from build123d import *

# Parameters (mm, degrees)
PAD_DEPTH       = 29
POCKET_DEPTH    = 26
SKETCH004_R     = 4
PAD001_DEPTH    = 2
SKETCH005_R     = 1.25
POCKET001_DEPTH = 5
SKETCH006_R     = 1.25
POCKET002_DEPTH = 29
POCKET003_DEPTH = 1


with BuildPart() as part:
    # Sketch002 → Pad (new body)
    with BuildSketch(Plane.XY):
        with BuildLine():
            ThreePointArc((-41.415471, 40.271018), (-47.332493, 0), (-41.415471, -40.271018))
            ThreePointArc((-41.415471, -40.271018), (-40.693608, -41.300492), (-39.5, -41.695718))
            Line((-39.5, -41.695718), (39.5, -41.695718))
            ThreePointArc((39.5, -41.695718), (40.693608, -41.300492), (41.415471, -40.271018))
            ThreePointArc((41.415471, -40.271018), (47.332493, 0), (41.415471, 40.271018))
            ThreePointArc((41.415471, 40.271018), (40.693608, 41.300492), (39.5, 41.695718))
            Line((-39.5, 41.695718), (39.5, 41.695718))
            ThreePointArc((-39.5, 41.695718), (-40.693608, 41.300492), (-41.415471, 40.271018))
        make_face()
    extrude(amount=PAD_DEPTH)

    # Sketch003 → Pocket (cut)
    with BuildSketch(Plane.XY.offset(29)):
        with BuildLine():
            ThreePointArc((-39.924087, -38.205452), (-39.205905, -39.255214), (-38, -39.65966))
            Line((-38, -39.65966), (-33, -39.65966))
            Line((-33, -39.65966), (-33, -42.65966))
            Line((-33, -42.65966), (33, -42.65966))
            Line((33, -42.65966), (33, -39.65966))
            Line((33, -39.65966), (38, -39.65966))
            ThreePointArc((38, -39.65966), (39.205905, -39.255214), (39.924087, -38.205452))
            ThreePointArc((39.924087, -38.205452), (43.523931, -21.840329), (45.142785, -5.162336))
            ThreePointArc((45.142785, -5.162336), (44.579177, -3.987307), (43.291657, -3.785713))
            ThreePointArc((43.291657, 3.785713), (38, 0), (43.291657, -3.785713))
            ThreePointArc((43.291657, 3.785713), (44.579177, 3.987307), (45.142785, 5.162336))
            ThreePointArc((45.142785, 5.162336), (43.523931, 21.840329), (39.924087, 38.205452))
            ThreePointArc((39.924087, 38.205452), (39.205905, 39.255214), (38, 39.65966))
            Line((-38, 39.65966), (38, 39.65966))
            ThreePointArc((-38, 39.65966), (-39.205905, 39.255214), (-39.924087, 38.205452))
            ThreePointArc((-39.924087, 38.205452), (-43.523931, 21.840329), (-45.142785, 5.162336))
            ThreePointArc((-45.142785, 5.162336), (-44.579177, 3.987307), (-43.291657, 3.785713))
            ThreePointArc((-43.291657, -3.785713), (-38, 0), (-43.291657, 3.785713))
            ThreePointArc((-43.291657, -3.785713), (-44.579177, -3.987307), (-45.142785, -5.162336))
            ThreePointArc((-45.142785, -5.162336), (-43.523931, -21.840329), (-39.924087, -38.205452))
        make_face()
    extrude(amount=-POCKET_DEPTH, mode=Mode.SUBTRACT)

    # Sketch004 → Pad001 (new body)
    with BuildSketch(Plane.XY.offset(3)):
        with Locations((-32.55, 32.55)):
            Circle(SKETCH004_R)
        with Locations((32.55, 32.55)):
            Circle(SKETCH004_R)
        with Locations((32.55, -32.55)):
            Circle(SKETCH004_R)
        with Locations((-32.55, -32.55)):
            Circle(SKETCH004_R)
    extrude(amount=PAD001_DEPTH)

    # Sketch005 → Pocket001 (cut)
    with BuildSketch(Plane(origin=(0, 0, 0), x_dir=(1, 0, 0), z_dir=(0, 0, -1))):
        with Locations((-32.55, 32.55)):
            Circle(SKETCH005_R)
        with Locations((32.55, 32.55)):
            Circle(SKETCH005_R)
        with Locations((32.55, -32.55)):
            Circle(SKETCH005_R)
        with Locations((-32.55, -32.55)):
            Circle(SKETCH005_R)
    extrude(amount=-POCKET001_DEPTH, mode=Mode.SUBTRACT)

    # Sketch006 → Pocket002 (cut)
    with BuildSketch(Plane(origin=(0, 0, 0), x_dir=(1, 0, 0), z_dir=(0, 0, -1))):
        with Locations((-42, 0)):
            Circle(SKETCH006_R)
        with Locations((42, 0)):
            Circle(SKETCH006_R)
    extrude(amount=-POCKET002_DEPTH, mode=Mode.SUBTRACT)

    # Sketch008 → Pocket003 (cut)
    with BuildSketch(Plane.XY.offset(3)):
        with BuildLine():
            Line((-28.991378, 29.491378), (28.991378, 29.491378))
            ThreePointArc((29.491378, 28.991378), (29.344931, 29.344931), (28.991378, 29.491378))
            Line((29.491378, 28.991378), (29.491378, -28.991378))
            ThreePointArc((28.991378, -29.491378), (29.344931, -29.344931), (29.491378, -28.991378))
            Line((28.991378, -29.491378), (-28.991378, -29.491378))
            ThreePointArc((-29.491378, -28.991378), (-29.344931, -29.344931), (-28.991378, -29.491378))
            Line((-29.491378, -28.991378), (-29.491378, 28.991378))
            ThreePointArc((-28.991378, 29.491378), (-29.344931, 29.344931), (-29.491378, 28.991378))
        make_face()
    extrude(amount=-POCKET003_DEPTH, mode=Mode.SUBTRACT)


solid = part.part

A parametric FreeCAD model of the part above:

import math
import FreeCAD as App
import Part
import Sketcher

V = App.Vector
Q = App.Units.Quantity

doc = App.newDocument("Part")
body = doc.addObject("PartDesign::Body", "Body")

sketch1 = body.newObject("Sketcher::SketchObject", "Sketch")
sketch1.AttachmentSupport = (doc.getObject("XY_Plane"), [""])
sketch1.MapMode = "FlatFace"
sketch1.addGeometry(Part.ArcOfCircle(Part.Circle(V(92.667497, 0, 0), V(0, 0, 1), 139.99999), math.radians(163.282674), math.radians(196.717326)), False)
sketch1.addGeometry(Part.ArcOfCircle(Part.Circle(V(-39.5, -39.695718, 0), V(0, 0, 1), 2), math.radians(-163.282685), math.radians(-90.000003)), False)
sketch1.addGeometry(Part.LineSegment(V(-39.5, -41.695718, 0), V(39.5, -41.695718, 0)), False)
sketch1.addGeometry(Part.ArcOfCircle(Part.Circle(V(39.5, -39.695718, 0), V(0, 0, 1), 2), math.radians(-89.999997), math.radians(-16.717315)), False)
sketch1.addGeometry(Part.ArcOfCircle(Part.Circle(V(-92.667497, 0, 0), V(0, 0, 1), 139.99999), math.radians(-16.717326), math.radians(16.717326)), False)
sketch1.addGeometry(Part.ArcOfCircle(Part.Circle(V(39.5, 39.695718, 0), V(0, 0, 1), 2), math.radians(16.717315), math.radians(89.999997)), False)
sketch1.addGeometry(Part.LineSegment(V(39.5, 41.695718, 0), V(-39.5, 41.695718, 0)), False)
sketch1.addGeometry(Part.ArcOfCircle(Part.Circle(V(-39.5, 39.695718, 0), V(0, 0, 1), 2), math.radians(90.000003), math.radians(163.282685)), False)
sketch1.addConstraint(Sketcher.Constraint("Coincident", 0, 2, 1, 1))
sketch1.addConstraint(Sketcher.Constraint("Coincident", 1, 2, 2, 1))
sketch1.addConstraint(Sketcher.Constraint("Coincident", 2, 2, 3, 1))
sketch1.addConstraint(Sketcher.Constraint("Coincident", 3, 2, 4, 1))
sketch1.addConstraint(Sketcher.Constraint("Coincident", 4, 2, 5, 1))
sketch1.addConstraint(Sketcher.Constraint("Coincident", 5, 2, 6, 1))
sketch1.addConstraint(Sketcher.Constraint("Coincident", 6, 2, 7, 1))
sketch1.addConstraint(Sketcher.Constraint("Coincident", 7, 2, 0, 1))
sketch1.addConstraint(Sketcher.Constraint("Horizontal", 2))
sketch1.addConstraint(Sketcher.Constraint("Horizontal", 6))
sketch1.addConstraint(Sketcher.Constraint("PointOnObject", 0, 3, -1))
sketch1.addConstraint(Sketcher.Constraint("PointOnObject", 4, 3, -1))
sketch1.addConstraint(Sketcher.Constraint("Radius", 1, Q("2 mm")))
sketch1.addConstraint(Sketcher.Constraint("Radius", 3, Q("2 mm")))
sketch1.addConstraint(Sketcher.Constraint("Radius", 5, Q("2 mm")))
sketch1.addConstraint(Sketcher.Constraint("Radius", 7, Q("2 mm")))
sketch1.addConstraint(Sketcher.Constraint("DistanceX", 2, 1, 2, 2, Q("79 mm")))
sketch1.addConstraint(Sketcher.Constraint("DistanceX", 6, 2, 6, 1, Q("79 mm")))
sketch1.addConstraint(Sketcher.Constraint("DistanceX", 1, 3, 3, 3, Q("79 mm")))
sketch1.addConstraint(Sketcher.Constraint("DistanceX", 1, 3, 5, 3, Q("79 mm")))
sketch1.addConstraint(Sketcher.Constraint("DistanceX", 1, 2, 3, 3, Q("79 mm")))
sketch1.addConstraint(Sketcher.Constraint("DistanceX", 7, 3, 5, 2, Q("79 mm")))
sketch1.addConstraint(Sketcher.Constraint("DistanceX", 1, 3, -1, 1, Q("39.5 mm")))
sketch1.addConstraint(Sketcher.Constraint("Radius", 0, Q("139.99999 mm")))
sketch1.addConstraint(Sketcher.Constraint("Radius", 4, Q("139.99999 mm")))
sketch1.addConstraint(Sketcher.Constraint("DistanceY", 0, 2, 1, 3, Q("0.5753 mm")))
sketch1.addConstraint(Sketcher.Constraint("DistanceY", 3, 2, 3, 3, Q("0.5753 mm")))
sketch1.addConstraint(Sketcher.Constraint("DistanceY", 5, 3, 4, 2, Q("0.5753 mm")))
sketch1.addConstraint(Sketcher.Constraint("DistanceY", 7, 3, 7, 2, Q("0.5753 mm")))
sketch1.addConstraint(Sketcher.Constraint("DistanceY", 1, 3, -1, 1, Q("39.695718 mm")))
pad1 = body.newObject("PartDesign::Pad", "Pad")
pad1.Profile = sketch1
pad1.Length = 29

sketch2 = body.newObject("Sketcher::SketchObject", "Sketch001")
sketch2.AttachmentSupport = (doc.getObject("XY_Plane"), [""])
sketch2.MapMode = "FlatFace"
sketch2.AttachmentOffset = App.Placement(V(0, 0, 29), App.Rotation())
sketch2.addGeometry(Part.ArcOfCircle(Part.Circle(V(-38, -37.65966, 0), V(0, 0, 1), 2), math.radians(-164.163323), math.radians(-90.00001)), False)
sketch2.addGeometry(Part.LineSegment(V(-38, -39.65966, 0), V(-33, -39.65966, 0)), False)
sketch2.addGeometry(Part.LineSegment(V(-33, -39.65966, 0), V(-33, -42.65966, 0)), False)
sketch2.addGeometry(Part.LineSegment(V(-33, -42.65966, 0), V(33, -42.65966, 0)), False)
sketch2.addGeometry(Part.LineSegment(V(33, -42.65966, 0), V(33, -39.65966, 0)), False)
sketch2.addGeometry(Part.LineSegment(V(33, -39.65966, 0), V(38, -39.65966, 0)), False)
sketch2.addGeometry(Part.ArcOfCircle(Part.Circle(V(38, -37.65966, 0), V(0, 0, 1), 2), math.radians(-89.99999), math.radians(-15.836677)), False)
sketch2.addGeometry(Part.ArcOfCircle(Part.Circle(V(-94.761952, -0.000008, 0), V(0, 0, 1), 139.999947), math.radians(-15.836677), math.radians(-2.113191)), False)
sketch2.addGeometry(Part.ArcOfCircle(Part.Circle(V(43.743737, -5.110713, 0), V(0, 0, 1), 1.4), math.radians(-2.113191), math.radians(108.839255)), False)
sketch2.addGeometry(Part.ArcOfCircle(Part.Circle(V(42, 0, 0), V(0, 0, 1), 4), math.radians(71.160743), math.radians(288.839257)), False)
sketch2.addGeometry(Part.ArcOfCircle(Part.Circle(V(43.743737, 5.110713, 0), V(0, 0, 1), 1.4), math.radians(-108.839255), math.radians(2.113191)), False)
sketch2.addGeometry(Part.ArcOfCircle(Part.Circle(V(-94.761952, 0.000008, 0), V(0, 0, 1), 139.999947), math.radians(2.113191), math.radians(15.836677)), False)
sketch2.addGeometry(Part.ArcOfCircle(Part.Circle(V(38, 37.65966, 0), V(0, 0, 1), 2), math.radians(15.836677), math.radians(89.99999)), False)
sketch2.addGeometry(Part.LineSegment(V(38, 39.65966, 0), V(-38, 39.65966, 0)), False)
sketch2.addGeometry(Part.ArcOfCircle(Part.Circle(V(-38, 37.65966, 0), V(0, 0, 1), 2), math.radians(90.00001), math.radians(164.163323)), False)
sketch2.addGeometry(Part.ArcOfCircle(Part.Circle(V(94.761952, 0.000008, 0), V(0, 0, 1), 139.999947), math.radians(164.163323), math.radians(177.886809)), False)
sketch2.addGeometry(Part.ArcOfCircle(Part.Circle(V(-43.743737, 5.110713, 0), V(0, 0, 1), 1.4), math.radians(177.886809), math.radians(288.839255)), False)
sketch2.addGeometry(Part.ArcOfCircle(Part.Circle(V(-42, 0, 0), V(0, 0, 1), 4), math.radians(-108.839257), math.radians(108.839257)), False)
sketch2.addGeometry(Part.ArcOfCircle(Part.Circle(V(-43.743737, -5.110713, 0), V(0, 0, 1), 1.4), math.radians(71.160745), math.radians(182.113191)), False)
sketch2.addGeometry(Part.ArcOfCircle(Part.Circle(V(94.761952, -0.000008, 0), V(0, 0, 1), 139.999947), math.radians(-177.886809), math.radians(-164.163323)), False)
sketch2.addConstraint(Sketcher.Constraint("Coincident", 0, 2, 1, 1))
sketch2.addConstraint(Sketcher.Constraint("Coincident", 1, 2, 2, 1))
sketch2.addConstraint(Sketcher.Constraint("Coincident", 2, 2, 3, 1))
sketch2.addConstraint(Sketcher.Constraint("Coincident", 3, 2, 4, 1))
sketch2.addConstraint(Sketcher.Constraint("Coincident", 4, 2, 5, 1))
sketch2.addConstraint(Sketcher.Constraint("Coincident", 5, 2, 6, 1))
sketch2.addConstraint(Sketcher.Constraint("Coincident", 6, 2, 7, 1))
sketch2.addConstraint(Sketcher.Constraint("Coincident", 7, 2, 8, 1))
sketch2.addConstraint(Sketcher.Constraint("Coincident", 8, 2, 9, 2))
sketch2.addConstraint(Sketcher.Constraint("Coincident", 9, 1, 10, 1))
sketch2.addConstraint(Sketcher.Constraint("Coincident", 10, 2, 11, 1))
sketch2.addConstraint(Sketcher.Constraint("Coincident", 11, 2, 12, 1))
sketch2.addConstraint(Sketcher.Constraint("Coincident", 12, 2, 13, 1))
sketch2.addConstraint(Sketcher.Constraint("Coincident", 13, 2, 14, 1))
sketch2.addConstraint(Sketcher.Constraint("Coincident", 14, 2, 15, 1))
sketch2.addConstraint(Sketcher.Constraint("Coincident", 15, 2, 16, 1))
sketch2.addConstraint(Sketcher.Constraint("Coincident", 16, 2, 17, 2))
sketch2.addConstraint(Sketcher.Constraint("Coincident", 17, 1, 18, 1))
sketch2.addConstraint(Sketcher.Constraint("Coincident", 18, 2, 19, 1))
sketch2.addConstraint(Sketcher.Constraint("Coincident", 19, 2, 0, 1))
sketch2.addConstraint(Sketcher.Constraint("Horizontal", 1))
sketch2.addConstraint(Sketcher.Constraint("Vertical", 2))
sketch2.addConstraint(Sketcher.Constraint("Horizontal", 3))
sketch2.addConstraint(Sketcher.Constraint("Vertical", 4))
sketch2.addConstraint(Sketcher.Constraint("Horizontal", 5))
sketch2.addConstraint(Sketcher.Constraint("Horizontal", 13))
sketch2.addConstraint(Sketcher.Constraint("PointOnObject", 9, 3, -1))
sketch2.addConstraint(Sketcher.Constraint("PointOnObject", 17, 3, -1))
sketch2.addConstraint(Sketcher.Constraint("Radius", 0, Q("2 mm")))
sketch2.addConstraint(Sketcher.Constraint("Radius", 6, Q("2 mm")))
sketch2.addConstraint(Sketcher.Constraint("Radius", 9, Q("4 mm")))
sketch2.addConstraint(Sketcher.Constraint("Radius", 12, Q("2 mm")))
sketch2.addConstraint(Sketcher.Constraint("Radius", 14, Q("2 mm")))
sketch2.addConstraint(Sketcher.Constraint("Radius", 17, Q("4 mm")))
sketch2.addConstraint(Sketcher.Constraint("Radius", 8, Q("1.4 mm")))
sketch2.addConstraint(Sketcher.Constraint("Radius", 10, Q("1.4 mm")))
sketch2.addConstraint(Sketcher.Constraint("Radius", 16, Q("1.4 mm")))
sketch2.addConstraint(Sketcher.Constraint("Radius", 18, Q("1.4 mm")))
sketch2.addConstraint(Sketcher.Constraint("DistanceX", 1, 1, 1, 2, Q("5 mm")))
sketch2.addConstraint(Sketcher.Constraint("DistanceX", 3, 1, 3, 2, Q("66 mm")))
sketch2.addConstraint(Sketcher.Constraint("DistanceX", 5, 1, 5, 2, Q("5 mm")))
sketch2.addConstraint(Sketcher.Constraint("DistanceX", 13, 2, 13, 1, Q("76 mm")))
sketch2.addConstraint(Sketcher.Constraint("DistanceY", 2, 2, 2, 1, Q("3 mm")))
sketch2.addConstraint(Sketcher.Constraint("DistanceY", 4, 1, 4, 2, Q("3 mm")))
sketch2.addConstraint(Sketcher.Constraint("DistanceX", 0, 3, -1, 1, Q("38 mm")))
sketch2.addConstraint(Sketcher.Constraint("DistanceX", -1, 1, 6, 3, Q("38 mm")))
sketch2.addConstraint(Sketcher.Constraint("DistanceX", -1, 1, 9, 3, Q("42 mm")))
sketch2.addConstraint(Sketcher.Constraint("DistanceX", -1, 1, 12, 3, Q("38 mm")))
sketch2.addConstraint(Sketcher.Constraint("DistanceX", 14, 3, -1, 1, Q("38 mm")))
sketch2.addConstraint(Sketcher.Constraint("DistanceX", 17, 3, -1, 1, Q("42 mm")))
sketch2.addConstraint(Sketcher.Constraint("DistanceX", 0, 2, -1, 1, Q("38 mm")))
sketch2.addConstraint(Sketcher.Constraint("DistanceX", -1, 1, 12, 2, Q("38 mm")))
sketch2.addConstraint(Sketcher.Constraint("Radius", 7, Q("139.999947 mm")))
sketch2.addConstraint(Sketcher.Constraint("Radius", 11, Q("139.999947 mm")))
sketch2.addConstraint(Sketcher.Constraint("Radius", 15, Q("139.999947 mm")))
sketch2.addConstraint(Sketcher.Constraint("Radius", 19, Q("139.999947 mm")))
sketch2.addConstraint(Sketcher.Constraint("DistanceY", 8, 3, 8, 2, Q("1.325 mm")))
sketch2.addConstraint(Sketcher.Constraint("DistanceY", 9, 1, 10, 3, Q("1.325 mm")))
sketch2.addConstraint(Sketcher.Constraint("DistanceY", 16, 2, 16, 3, Q("1.325 mm")))
sketch2.addConstraint(Sketcher.Constraint("DistanceY", 18, 3, 17, 1, Q("1.325 mm")))
sketch2.addConstraint(Sketcher.Constraint("DistanceX", 6, 2, 7, 2, Q("5.218698 mm")))
sketch2.addConstraint(Sketcher.Constraint("DistanceX", 11, 2, 10, 2, Q("5.218698 mm")))
sketch2.addConstraint(Sketcher.Constraint("DistanceX", 15, 2, 14, 2, Q("5.218698 mm")))
sketch2.addConstraint(Sketcher.Constraint("DistanceY", 0, 3, -1, 1, Q("37.65966 mm")))
sketch2.addConstraint(Sketcher.Constraint("DistanceY", -1, 1, 12, 3, Q("37.65966 mm")))
sketch2.addConstraint(Sketcher.Constraint("DistanceY", 0, 3, 7, 3, Q("37.659652 mm")))
sketch2.addConstraint(Sketcher.Constraint("DistanceX", 7, 3, 10, 3, Q("138.505689 mm")))
sketch2.addConstraint(Sketcher.Constraint("DistanceY", 8, 3, 15, 3, Q("5.11072 mm")))
sketch2.addConstraint(Sketcher.Constraint("DistanceY", 19, 3, 10, 3, Q("5.11072 mm")))
sketch2.addConstraint(Sketcher.Constraint("DistanceX", 6, 2, 8, 3, Q("3.81965 mm")))
sketch2.addConstraint(Sketcher.Constraint("DistanceX", 10, 3, 10, 2, Q("1.399048 mm")))
sketch2.addConstraint(Sketcher.Constraint("DistanceX", 16, 3, 14, 2, Q("3.81965 mm")))
sketch2.addConstraint(Sketcher.Constraint("DistanceX", 18, 2, 18, 3, Q("1.399048 mm")))
sketch2.addConstraint(Sketcher.Constraint("DistanceX", 18, 3, 19, 2, Q("3.81965 mm")))
pocket1 = body.newObject("PartDesign::Pocket", "Pocket")
pocket1.Profile = sketch2
pocket1.Length = 26

sketch3 = body.newObject("Sketcher::SketchObject", "Sketch002")
sketch3.AttachmentSupport = (doc.getObject("XY_Plane"), [""])
sketch3.MapMode = "FlatFace"
sketch3.AttachmentOffset = App.Placement(V(0, 0, 3), App.Rotation())
sketch3.addGeometry(Part.Circle(V(-32.5, 32.5, 0), V(0, 0, 1), 4), False)
sketch3.addGeometry(Part.Circle(V(32.5, 32.5, 0), V(0, 0, 1), 4), False)
sketch3.addGeometry(Part.Circle(V(32.5, -32.5, 0), V(0, 0, 1), 4), False)
sketch3.addGeometry(Part.Circle(V(-32.5, -32.5, 0), V(0, 0, 1), 4), False)
sketch3.addConstraint(Sketcher.Constraint("Equal", 0, 1))
sketch3.addConstraint(Sketcher.Constraint("Equal", 1, 2))
sketch3.addConstraint(Sketcher.Constraint("Equal", 2, 3))
sketch3.addConstraint(Sketcher.Constraint("Symmetric", 0, 3, 2, 3, -1, 1))
sketch3.addConstraint(Sketcher.Constraint("Symmetric", 1, 3, 3, 3, -1, 1))
sketch3.addConstraint(Sketcher.Constraint("Symmetric", 0, 3, 1, 3, -2))
sketch3.addConstraint(Sketcher.Constraint("Diameter", 0, Q("8 mm")))
sketch3.addConstraint(Sketcher.Constraint("DistanceX", 0, 3, 1, 3, Q("65.1 mm")))
sketch3.addConstraint(Sketcher.Constraint("DistanceY", 2, 3, 1, 3, Q("65.1 mm")))
pad2 = body.newObject("PartDesign::Pad", "Pad001")
pad2.Profile = sketch3
pad2.Length = 2

sketch4 = body.newObject("Sketcher::SketchObject", "Sketch003")
sketch4.AttachmentSupport = (doc.getObject("XY_Plane"), [""])
sketch4.MapMode = "FlatFace"
sketch4.addGeometry(Part.Circle(V(-32.5, -32.5, 0), V(0, 0, 1), 1.2), False)
sketch4.addGeometry(Part.Circle(V(32.5, -32.5, 0), V(0, 0, 1), 1.2), False)
sketch4.addGeometry(Part.Circle(V(32.5, 32.5, 0), V(0, 0, 1), 1.2), False)
sketch4.addGeometry(Part.Circle(V(-32.5, 32.5, 0), V(0, 0, 1), 1.2), False)
sketch4.addConstraint(Sketcher.Constraint("Equal", 0, 1))
sketch4.addConstraint(Sketcher.Constraint("Equal", 1, 2))
sketch4.addConstraint(Sketcher.Constraint("Equal", 2, 3))
sketch4.addConstraint(Sketcher.Constraint("Symmetric", 0, 3, 2, 3, -1, 1))
sketch4.addConstraint(Sketcher.Constraint("Symmetric", 1, 3, 3, 3, -1, 1))
sketch4.addConstraint(Sketcher.Constraint("Symmetric", 0, 3, 1, 3, -2))
sketch4.addConstraint(Sketcher.Constraint("Diameter", 0, Q("2.5 mm")))
sketch4.addConstraint(Sketcher.Constraint("DistanceX", 0, 3, 1, 3, Q("65.1 mm")))
sketch4.addConstraint(Sketcher.Constraint("DistanceY", 1, 3, 2, 3, Q("65.1 mm")))
pocket2 = body.newObject("PartDesign::Pocket", "Pocket001")
pocket2.Profile = sketch4
pocket2.Length = 5
pocket2.Reversed = True

sketch5 = body.newObject("Sketcher::SketchObject", "Sketch004")
sketch5.AttachmentSupport = (doc.getObject("XY_Plane"), [""])
sketch5.MapMode = "FlatFace"
sketch5.addGeometry(Part.Circle(V(-42, 0, 0), V(0, 0, 1), 1.2), False)
sketch5.addGeometry(Part.Circle(V(42, 0, 0), V(0, 0, 1), 1.2), False)
sketch5.addConstraint(Sketcher.Constraint("Equal", 0, 1))
sketch5.addConstraint(Sketcher.Constraint("Symmetric", 0, 3, 1, 3, -1, 1))
sketch5.addConstraint(Sketcher.Constraint("PointOnObject", 0, 3, -1))
sketch5.addConstraint(Sketcher.Constraint("Diameter", 0, Q("2.5 mm")))
sketch5.addConstraint(Sketcher.Constraint("DistanceX", 0, 3, -1, 1, Q("42 mm")))
pocket3 = body.newObject("PartDesign::Pocket", "Pocket002")
pocket3.Profile = sketch5
pocket3.Length = 29
pocket3.Reversed = True

sketch6 = body.newObject("Sketcher::SketchObject", "Sketch005")
sketch6.AttachmentSupport = (doc.getObject("XY_Plane"), [""])
sketch6.MapMode = "FlatFace"
sketch6.AttachmentOffset = App.Placement(V(0, 0, 3), App.Rotation())
sketch6.addGeometry(Part.LineSegment(V(29, 29.5, 0), V(-29, 29.5, 0)), False)
sketch6.addGeometry(Part.ArcOfCircle(Part.Circle(V(-29, 29, 0), V(0, 0, 1), 0.5), math.radians(90), math.radians(180)), False)
sketch6.addGeometry(Part.LineSegment(V(-29.5, 29, 0), V(-29.5, -29, 0)), False)
sketch6.addGeometry(Part.ArcOfCircle(Part.Circle(V(-29, -29, 0), V(0, 0, 1), 0.5), math.radians(-180), math.radians(-90)), False)
sketch6.addGeometry(Part.LineSegment(V(-29, -29.5, 0), V(29, -29.5, 0)), False)
sketch6.addGeometry(Part.ArcOfCircle(Part.Circle(V(29, -29, 0), V(0, 0, 1), 0.5), math.radians(-90), math.radians(0)), False)
sketch6.addGeometry(Part.LineSegment(V(29.5, -29, 0), V(29.5, 29, 0)), False)
sketch6.addGeometry(Part.ArcOfCircle(Part.Circle(V(29, 29, 0), V(0, 0, 1), 0.5), math.radians(0), math.radians(90)), False)
sketch6.addConstraint(Sketcher.Constraint("Coincident", 0, 2, 1, 1))
sketch6.addConstraint(Sketcher.Constraint("Coincident", 1, 2, 2, 1))
sketch6.addConstraint(Sketcher.Constraint("Coincident", 2, 2, 3, 1))
sketch6.addConstraint(Sketcher.Constraint("Coincident", 3, 2, 4, 1))
sketch6.addConstraint(Sketcher.Constraint("Coincident", 4, 2, 5, 1))
sketch6.addConstraint(Sketcher.Constraint("Coincident", 5, 2, 6, 1))
sketch6.addConstraint(Sketcher.Constraint("Coincident", 6, 2, 7, 1))
sketch6.addConstraint(Sketcher.Constraint("Coincident", 7, 2, 0, 1))
sketch6.addConstraint(Sketcher.Constraint("Horizontal", 0))
sketch6.addConstraint(Sketcher.Constraint("Vertical", 2))
sketch6.addConstraint(Sketcher.Constraint("Horizontal", 4))
sketch6.addConstraint(Sketcher.Constraint("Vertical", 6))
sketch6.addConstraint(Sketcher.Constraint("Equal", 1, 3))
sketch6.addConstraint(Sketcher.Constraint("Equal", 3, 5))
sketch6.addConstraint(Sketcher.Constraint("Equal", 5, 7))
sketch6.addConstraint(Sketcher.Constraint("Symmetric", 1, 3, 5, 3, -1, 1))
sketch6.addConstraint(Sketcher.Constraint("Horizontal", 7, 3, 1, 2))
sketch6.addConstraint(Sketcher.Constraint("Horizontal", 5, 3, 2, 2))
sketch6.addConstraint(Sketcher.Constraint("Horizontal", 2, 2, 5, 2))
sketch6.addConstraint(Sketcher.Constraint("Horizontal", 1, 2, 6, 2))
sketch6.addConstraint(Sketcher.Constraint("Vertical", 3, 3, 0, 2))
sketch6.addConstraint(Sketcher.Constraint("Vertical", 0, 2, 3, 2))
sketch6.addConstraint(Sketcher.Constraint("Vertical", 7, 3, 4, 2))
sketch6.addConstraint(Sketcher.Constraint("Vertical", 4, 2, 7, 2))
sketch6.addConstraint(Sketcher.Constraint("Equal", 4, 2))
sketch6.addConstraint(Sketcher.Constraint("Radius", 1, Q("0.500001 mm")))
sketch6.addConstraint(Sketcher.Constraint("DistanceX", 0, 2, 0, 1, Q("57.982756 mm")))
pocket4 = body.newObject("PartDesign::Pocket", "Pocket003")
pocket4.Profile = sketch6
pocket4.Length = 1

doc.recompute()
